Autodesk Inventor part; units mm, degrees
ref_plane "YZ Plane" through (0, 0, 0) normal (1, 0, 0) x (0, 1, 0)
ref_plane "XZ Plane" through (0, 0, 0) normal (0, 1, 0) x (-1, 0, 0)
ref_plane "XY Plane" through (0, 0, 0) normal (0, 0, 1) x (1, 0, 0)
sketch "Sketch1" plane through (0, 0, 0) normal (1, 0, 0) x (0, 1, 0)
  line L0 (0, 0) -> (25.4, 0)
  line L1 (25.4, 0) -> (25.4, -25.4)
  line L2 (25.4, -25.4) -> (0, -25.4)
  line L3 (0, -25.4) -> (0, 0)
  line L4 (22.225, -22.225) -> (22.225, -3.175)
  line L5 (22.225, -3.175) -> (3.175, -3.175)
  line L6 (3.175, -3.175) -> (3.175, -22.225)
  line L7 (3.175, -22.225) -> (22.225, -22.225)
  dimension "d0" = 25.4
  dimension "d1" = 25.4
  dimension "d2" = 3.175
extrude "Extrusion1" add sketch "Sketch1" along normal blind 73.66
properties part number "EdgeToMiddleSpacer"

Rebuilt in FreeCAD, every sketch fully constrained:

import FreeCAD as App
import Part
import Sketcher
from FreeCAD import Vector
Q = App.Units.Quantity


def add_polygon(sketch, points):
    """Adds a closed chain of lines whose ends are joined by coincident constraints."""
    first, n = sketch.GeometryCount, len(points)
    for a, b in zip(points, points[1:] + points[:1]):
        sketch.addGeometry(Part.LineSegment(App.Vector(*a, 0), App.Vector(*b, 0)), False)
    for i in range(n):
        sketch.addConstraint(Sketcher.Constraint("Coincident", first + i, 2, first + (i + 1) % n, 1))

doc = App.newDocument("Part")
body = doc.addObject("PartDesign::Body", "Body")

# Sketch on YZ plane
sketch1 = body.newObject("Sketcher::SketchObject", "Sketch")
sketch1.AttachmentSupport = (doc.getObject("YZ_Plane"), [""])
sketch1.MapMode = "FlatFace"
add_polygon(sketch1, [(25, 0), (0, 0), (0, -25), (25, -25)])  # lines 0-3
add_polygon(sketch1, [(22, -3), (22, -22), (3, -22), (3, -3)])  # lines 4-7
sketch1.addConstraint([
    Sketcher.Constraint("Horizontal", 0),
    Sketcher.Constraint("Vertical", 1),
    Sketcher.Constraint("Horizontal", 2),
    Sketcher.Constraint("Vertical", 3),
    Sketcher.Constraint("Vertical", 4),
    Sketcher.Constraint("Horizontal", 5),
    Sketcher.Constraint("Vertical", 6),
    Sketcher.Constraint("Horizontal", 7),
    Sketcher.Constraint("Coincident", 0, 2, -1, 1),
    Sketcher.Constraint("Equal", 2, 1),
    Sketcher.Constraint("Equal", 7, 4),
    Sketcher.Constraint("DistanceX", 0, 2, 0, 1, Q("1 in")),
    Sketcher.Constraint("DistanceX", -1, 1, 5, 2, Q("0.125 in")),
    Sketcher.Constraint("DistanceY", 6, 2, -1, 1, Q("0.125 in")),
    Sketcher.Constraint("DistanceX", 4, 2, 2, 2, Q("0.125 in")),
])
pad1 = body.newObject("PartDesign::Pad", "Pad")
pad1.Profile = sketch1
pad1.Length = Q("2.9 in")

doc.recompute()
